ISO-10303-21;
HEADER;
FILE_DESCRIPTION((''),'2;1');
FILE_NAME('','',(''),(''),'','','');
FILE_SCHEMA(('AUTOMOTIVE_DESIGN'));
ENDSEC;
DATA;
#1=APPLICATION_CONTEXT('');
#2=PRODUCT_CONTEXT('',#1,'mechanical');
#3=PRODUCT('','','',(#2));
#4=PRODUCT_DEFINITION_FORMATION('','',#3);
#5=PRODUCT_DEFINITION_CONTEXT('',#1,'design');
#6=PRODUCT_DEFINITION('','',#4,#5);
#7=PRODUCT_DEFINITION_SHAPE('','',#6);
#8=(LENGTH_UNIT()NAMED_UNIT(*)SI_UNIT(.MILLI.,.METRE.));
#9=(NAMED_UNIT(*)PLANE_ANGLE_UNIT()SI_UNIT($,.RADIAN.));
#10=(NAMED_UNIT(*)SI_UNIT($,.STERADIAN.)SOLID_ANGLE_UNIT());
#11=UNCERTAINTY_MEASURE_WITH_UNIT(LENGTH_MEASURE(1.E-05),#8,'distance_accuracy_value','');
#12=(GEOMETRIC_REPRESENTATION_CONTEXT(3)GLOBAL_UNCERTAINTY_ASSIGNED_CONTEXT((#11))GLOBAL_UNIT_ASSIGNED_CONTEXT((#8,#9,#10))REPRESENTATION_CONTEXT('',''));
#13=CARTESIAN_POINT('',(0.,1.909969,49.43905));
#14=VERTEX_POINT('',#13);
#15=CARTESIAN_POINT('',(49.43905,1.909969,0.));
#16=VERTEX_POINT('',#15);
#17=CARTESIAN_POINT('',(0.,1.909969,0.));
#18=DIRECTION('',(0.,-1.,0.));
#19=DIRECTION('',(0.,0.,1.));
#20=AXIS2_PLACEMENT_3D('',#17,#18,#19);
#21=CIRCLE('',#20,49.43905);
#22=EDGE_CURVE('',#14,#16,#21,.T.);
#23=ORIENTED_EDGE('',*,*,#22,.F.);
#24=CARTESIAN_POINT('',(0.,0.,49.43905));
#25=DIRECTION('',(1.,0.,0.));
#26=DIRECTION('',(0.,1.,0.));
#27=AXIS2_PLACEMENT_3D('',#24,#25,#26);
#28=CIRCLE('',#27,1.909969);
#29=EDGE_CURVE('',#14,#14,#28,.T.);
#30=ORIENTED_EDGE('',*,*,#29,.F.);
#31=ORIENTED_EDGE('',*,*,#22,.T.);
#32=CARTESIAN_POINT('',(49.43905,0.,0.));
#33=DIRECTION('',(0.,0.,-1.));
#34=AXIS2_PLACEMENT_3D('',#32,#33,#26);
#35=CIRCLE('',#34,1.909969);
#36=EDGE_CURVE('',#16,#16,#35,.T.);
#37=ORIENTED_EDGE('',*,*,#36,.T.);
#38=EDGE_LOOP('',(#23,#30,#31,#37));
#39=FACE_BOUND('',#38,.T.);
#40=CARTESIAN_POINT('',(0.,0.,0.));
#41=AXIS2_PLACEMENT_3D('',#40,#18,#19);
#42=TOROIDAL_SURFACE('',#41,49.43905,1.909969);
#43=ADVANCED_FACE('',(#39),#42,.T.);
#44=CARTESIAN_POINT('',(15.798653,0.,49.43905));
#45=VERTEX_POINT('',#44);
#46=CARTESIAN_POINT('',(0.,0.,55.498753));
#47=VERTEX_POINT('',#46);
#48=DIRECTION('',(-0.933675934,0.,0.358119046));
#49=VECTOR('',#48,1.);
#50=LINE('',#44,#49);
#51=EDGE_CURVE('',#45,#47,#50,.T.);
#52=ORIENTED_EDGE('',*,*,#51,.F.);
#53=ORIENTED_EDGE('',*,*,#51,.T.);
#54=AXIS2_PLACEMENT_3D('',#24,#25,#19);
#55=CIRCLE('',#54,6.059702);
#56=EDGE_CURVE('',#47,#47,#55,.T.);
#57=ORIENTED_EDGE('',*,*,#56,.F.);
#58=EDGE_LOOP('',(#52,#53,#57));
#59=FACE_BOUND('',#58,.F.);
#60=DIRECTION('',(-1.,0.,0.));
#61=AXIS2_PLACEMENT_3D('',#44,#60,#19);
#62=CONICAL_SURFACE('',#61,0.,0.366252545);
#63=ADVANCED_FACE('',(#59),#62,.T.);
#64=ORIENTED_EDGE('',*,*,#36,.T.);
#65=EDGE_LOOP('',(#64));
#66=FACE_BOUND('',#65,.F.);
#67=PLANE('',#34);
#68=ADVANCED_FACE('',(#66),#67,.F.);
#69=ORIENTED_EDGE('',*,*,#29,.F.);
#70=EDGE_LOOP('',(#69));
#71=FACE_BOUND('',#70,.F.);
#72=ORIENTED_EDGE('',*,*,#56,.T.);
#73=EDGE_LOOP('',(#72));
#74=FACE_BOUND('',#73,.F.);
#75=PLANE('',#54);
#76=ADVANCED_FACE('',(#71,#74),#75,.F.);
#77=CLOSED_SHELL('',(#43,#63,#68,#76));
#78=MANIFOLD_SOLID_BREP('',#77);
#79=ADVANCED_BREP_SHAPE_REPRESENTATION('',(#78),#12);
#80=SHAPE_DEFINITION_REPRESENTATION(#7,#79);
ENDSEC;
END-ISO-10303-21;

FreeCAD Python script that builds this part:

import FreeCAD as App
import Part
import Sketcher

V = App.Vector


def add_polygon(sketch, points):
    """Adds a closed chain of lines whose ends are joined by coincident constraints."""
    first, n = sketch.GeometryCount, len(points)
    for a, b in zip(points, points[1:] + points[:1]):
        sketch.addGeometry(Part.LineSegment(App.Vector(*a, 0), App.Vector(*b, 0)), False)
    for i in range(n):
        sketch.addConstraint(Sketcher.Constraint("Coincident", first + i, 2, first + (i + 1) % n, 1))

doc = App.newDocument("Part")
body = doc.addObject("PartDesign::Body", "Body")

sketch1 = body.newObject("Sketcher::SketchObject", "Sketch")
sketch1.AttachmentSupport = (doc.getObject("YZ_Plane"), [""])
sketch1.MapMode = "FlatFace"
sketch1.addGeometry(Part.Circle(V(0, 49.4, 0), V(0, 0, 1), 1.9), False)
sketch1.addConstraint([
    Sketcher.Constraint("PointOnObject", 0, 3, -2),
    Sketcher.Constraint("Diameter", 0, 3.819937),
    Sketcher.Constraint("DistanceY", -1, 1, 0, 3, 49.43905),
])
revolution = body.newObject("PartDesign::Revolution", "Revolution")
revolution.Profile = sketch1
revolution.ReferenceAxis = (sketch1, ["H_Axis"])
revolution.Angle = 270
revolution.Reversed = True

sketch2 = body.newObject("Sketcher::SketchObject", "Sketch001")
sketch2.AttachmentSupport = (doc.getObject("XZ_Plane"), [""])
sketch2.MapMode = "FlatFace"
add_polygon(sketch2, [(0, 55), (0, 49), (16, 49)])
sketch2.addGeometry(Part.LineSegment(V(0, 49, 0), V(16, 49, 0)), True)
sketch2.addConstraint([
    Sketcher.Constraint("Vertical", 0),
    Sketcher.Constraint("Horizontal", 1),
    Sketcher.Constraint("Horizontal", 3),
    Sketcher.Constraint("Coincident", 3, 1, 0, 2),
    Sketcher.Constraint("PointOnObject", 0, 2, -2),
    Sketcher.Constraint("Equal", 1, 3),
    Sketcher.Constraint("DistanceX", 1, 1, 1, 2, 15.798653),
    Sketcher.Constraint("DistanceY", 0, 2, 0, 1, 6.059702),
    Sketcher.Constraint("DistanceY", -1, 1, 0, 2, 49.43905),
])
revolution2 = body.newObject("PartDesign::Revolution", "Revolution001")
revolution2.Profile = sketch2
revolution2.ReferenceAxis = (sketch2, ["Axis0"])
revolution2.Angle = 360

doc.recompute()
